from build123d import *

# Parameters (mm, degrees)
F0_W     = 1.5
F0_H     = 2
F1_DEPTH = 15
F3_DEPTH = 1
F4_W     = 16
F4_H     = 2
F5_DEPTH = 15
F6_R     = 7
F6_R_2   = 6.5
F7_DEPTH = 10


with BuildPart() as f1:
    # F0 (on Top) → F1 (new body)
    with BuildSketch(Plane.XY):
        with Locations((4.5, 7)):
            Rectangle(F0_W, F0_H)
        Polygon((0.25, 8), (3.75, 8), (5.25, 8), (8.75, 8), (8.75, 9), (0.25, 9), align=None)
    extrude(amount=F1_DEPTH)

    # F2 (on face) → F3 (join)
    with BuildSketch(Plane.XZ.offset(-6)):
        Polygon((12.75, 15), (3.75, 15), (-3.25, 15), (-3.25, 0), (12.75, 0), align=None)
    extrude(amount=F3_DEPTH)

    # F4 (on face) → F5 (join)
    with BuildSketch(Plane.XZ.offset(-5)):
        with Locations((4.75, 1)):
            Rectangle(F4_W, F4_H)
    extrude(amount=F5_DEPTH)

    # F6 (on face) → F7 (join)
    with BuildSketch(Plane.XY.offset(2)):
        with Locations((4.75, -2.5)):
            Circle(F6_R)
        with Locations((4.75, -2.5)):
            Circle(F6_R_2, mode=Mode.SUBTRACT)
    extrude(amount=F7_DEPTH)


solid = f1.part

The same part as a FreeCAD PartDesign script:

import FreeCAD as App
import Part
import Sketcher


def add_polygon(sketch, points):
    """Adds a closed chain of lines whose ends are joined by coincident constraints."""
    first, n = sketch.GeometryCount, len(points)
    for a, b in zip(points, points[1:] + points[:1]):
        sketch.addGeometry(Part.LineSegment(App.Vector(*a, 0), App.Vector(*b, 0)), False)
    for i in range(n):
        sketch.addConstraint(Sketcher.Constraint("Coincident", first + i, 2, first + (i + 1) % n, 1))

doc = App.newDocument("Part")
body = doc.addObject("PartDesign::Body", "Body")

# Sketch on XY plane
sketch1 = body.newObject("Sketcher::SketchObject", "Sketch")
sketch1.AttachmentSupport = (doc.getObject("XY_Plane"), [""])
sketch1.MapMode = "FlatFace"
add_polygon(sketch1, [(3.8, 8), (3.8, 6), (5.2, 6), (5.2, 8), (8.8, 8), (8.8, 9), (0.2, 9), (0.2, 8)])  # lines 0-7
sketch1.addConstraint([
    Sketcher.Constraint("Vertical", 0),
    Sketcher.Constraint("Horizontal", 1),
    Sketcher.Constraint("Vertical", 2),
    Sketcher.Constraint("Horizontal", 3),
    Sketcher.Constraint("Vertical", 4),
    Sketcher.Constraint("Horizontal", 5),
    Sketcher.Constraint("Vertical", 6),
    Sketcher.Constraint("Horizontal", 7),
    Sketcher.Constraint("Horizontal", 3, 2, 6, 2),
    Sketcher.Constraint("Equal", 3, 7),
    Sketcher.Constraint("DistanceY", 0, 2, 0, 1, 2.0),
    Sketcher.Constraint("DistanceY", 4, 1, 4, 2, 1.0),
    Sketcher.Constraint("DistanceX", 1, 1, 1, 2, 1.5),
    Sketcher.Constraint("DistanceX", 3, 1, 3, 2, 3.5),
    Sketcher.Constraint("DistanceY", -1, 1, 0, 2, 6.0),
    Sketcher.Constraint("DistanceX", -1, 1, 0, 2, 3.75),
])
pad1 = body.newObject("PartDesign::Pad", "Pad")
pad1.Profile = sketch1
pad1.Length = 15

# Sketch on XZ plane
sketch2 = body.newObject("Sketcher::SketchObject", "Sketch001")
sketch2.AttachmentSupport = (doc.getObject("XZ_Plane"), [""])
sketch2.MapMode = "FlatFace"
sketch2.AttachmentOffset = App.Placement(App.Vector(0, 0, -6), App.Rotation())
add_polygon(sketch2, [(13, 15), (-3, 15), (-3, 0), (13, 0)])  # lines 0-3
sketch2.addConstraint([
    Sketcher.Constraint("Horizontal", 0),
    Sketcher.Constraint("Vertical", 1),
    Sketcher.Constraint("Horizontal", 2),
    Sketcher.Constraint("Vertical", 3),
    Sketcher.Constraint("PointOnObject", 1, 2, -1),
    Sketcher.Constraint("DistanceX", 0, 2, 0, 1, 16.0),
    Sketcher.Constraint("DistanceY", 1, 2, 1, 1, 15.0),
    Sketcher.Constraint("DistanceX", 0, 2, -1, 1, 3.25),
])
pad2 = body.newObject("PartDesign::Pad", "Pad001")
pad2.Profile = sketch2
pad2.Length = 1

# Sketch on XZ plane
sketch3 = body.newObject("Sketcher::SketchObject", "Sketch002")
sketch3.AttachmentSupport = (doc.getObject("XZ_Plane"), [""])
sketch3.MapMode = "FlatFace"
sketch3.AttachmentOffset = App.Placement(App.Vector(0, 0, -5), App.Rotation())
add_polygon(sketch3, [(-3.2, 2), (-3.2, 0), (12.8, 0), (12.8, 2)])  # lines 0-3
sketch3.addConstraint([
    Sketcher.Constraint("Vertical", 0),
    Sketcher.Constraint("Horizontal", 1),
    Sketcher.Constraint("Vertical", 2),
    Sketcher.Constraint("Horizontal", 3),
    Sketcher.Constraint("PointOnObject", 0, 2, -1),
    Sketcher.Constraint("DistanceX", 1, 1, 1, 2, 16.0),
    Sketcher.Constraint("DistanceY", 0, 2, 0, 1, 2.0),
    Sketcher.Constraint("DistanceX", 0, 2, -1, 1, 3.25),
])
pad3 = body.newObject("PartDesign::Pad", "Pad002")
pad3.Profile = sketch3
pad3.Length = 15

# Sketch on XY plane
sketch4 = body.newObject("Sketcher::SketchObject", "Sketch003")
sketch4.AttachmentSupport = (doc.getObject("XY_Plane"), [""])
sketch4.MapMode = "FlatFace"
sketch4.AttachmentOffset = App.Placement(App.Vector(0, 0, 2), App.Rotation())
sketch4.addGeometry([
    Part.Circle(App.Vector(5, -2, 0), App.Vector(0, 0, 1), 7),
    Part.Circle(App.Vector(5, -2, 0), App.Vector(0, 0, 1), 6),
], False)
sketch4.addConstraint([
    Sketcher.Constraint("Coincident", 1, 3, 0, 3),
    Sketcher.Constraint("Diameter", 0, 14.0),
    Sketcher.Constraint("Diameter", 1, 13.0),
    Sketcher.Constraint("DistanceY", 0, 3, -1, 1, 2.5),
    Sketcher.Constraint("DistanceX", -1, 1, 0, 3, 4.75),
])
pad4 = body.newObject("PartDesign::Pad", "Pad003")
pad4.Profile = sketch4
pad4.Length = 10

doc.recompute()
